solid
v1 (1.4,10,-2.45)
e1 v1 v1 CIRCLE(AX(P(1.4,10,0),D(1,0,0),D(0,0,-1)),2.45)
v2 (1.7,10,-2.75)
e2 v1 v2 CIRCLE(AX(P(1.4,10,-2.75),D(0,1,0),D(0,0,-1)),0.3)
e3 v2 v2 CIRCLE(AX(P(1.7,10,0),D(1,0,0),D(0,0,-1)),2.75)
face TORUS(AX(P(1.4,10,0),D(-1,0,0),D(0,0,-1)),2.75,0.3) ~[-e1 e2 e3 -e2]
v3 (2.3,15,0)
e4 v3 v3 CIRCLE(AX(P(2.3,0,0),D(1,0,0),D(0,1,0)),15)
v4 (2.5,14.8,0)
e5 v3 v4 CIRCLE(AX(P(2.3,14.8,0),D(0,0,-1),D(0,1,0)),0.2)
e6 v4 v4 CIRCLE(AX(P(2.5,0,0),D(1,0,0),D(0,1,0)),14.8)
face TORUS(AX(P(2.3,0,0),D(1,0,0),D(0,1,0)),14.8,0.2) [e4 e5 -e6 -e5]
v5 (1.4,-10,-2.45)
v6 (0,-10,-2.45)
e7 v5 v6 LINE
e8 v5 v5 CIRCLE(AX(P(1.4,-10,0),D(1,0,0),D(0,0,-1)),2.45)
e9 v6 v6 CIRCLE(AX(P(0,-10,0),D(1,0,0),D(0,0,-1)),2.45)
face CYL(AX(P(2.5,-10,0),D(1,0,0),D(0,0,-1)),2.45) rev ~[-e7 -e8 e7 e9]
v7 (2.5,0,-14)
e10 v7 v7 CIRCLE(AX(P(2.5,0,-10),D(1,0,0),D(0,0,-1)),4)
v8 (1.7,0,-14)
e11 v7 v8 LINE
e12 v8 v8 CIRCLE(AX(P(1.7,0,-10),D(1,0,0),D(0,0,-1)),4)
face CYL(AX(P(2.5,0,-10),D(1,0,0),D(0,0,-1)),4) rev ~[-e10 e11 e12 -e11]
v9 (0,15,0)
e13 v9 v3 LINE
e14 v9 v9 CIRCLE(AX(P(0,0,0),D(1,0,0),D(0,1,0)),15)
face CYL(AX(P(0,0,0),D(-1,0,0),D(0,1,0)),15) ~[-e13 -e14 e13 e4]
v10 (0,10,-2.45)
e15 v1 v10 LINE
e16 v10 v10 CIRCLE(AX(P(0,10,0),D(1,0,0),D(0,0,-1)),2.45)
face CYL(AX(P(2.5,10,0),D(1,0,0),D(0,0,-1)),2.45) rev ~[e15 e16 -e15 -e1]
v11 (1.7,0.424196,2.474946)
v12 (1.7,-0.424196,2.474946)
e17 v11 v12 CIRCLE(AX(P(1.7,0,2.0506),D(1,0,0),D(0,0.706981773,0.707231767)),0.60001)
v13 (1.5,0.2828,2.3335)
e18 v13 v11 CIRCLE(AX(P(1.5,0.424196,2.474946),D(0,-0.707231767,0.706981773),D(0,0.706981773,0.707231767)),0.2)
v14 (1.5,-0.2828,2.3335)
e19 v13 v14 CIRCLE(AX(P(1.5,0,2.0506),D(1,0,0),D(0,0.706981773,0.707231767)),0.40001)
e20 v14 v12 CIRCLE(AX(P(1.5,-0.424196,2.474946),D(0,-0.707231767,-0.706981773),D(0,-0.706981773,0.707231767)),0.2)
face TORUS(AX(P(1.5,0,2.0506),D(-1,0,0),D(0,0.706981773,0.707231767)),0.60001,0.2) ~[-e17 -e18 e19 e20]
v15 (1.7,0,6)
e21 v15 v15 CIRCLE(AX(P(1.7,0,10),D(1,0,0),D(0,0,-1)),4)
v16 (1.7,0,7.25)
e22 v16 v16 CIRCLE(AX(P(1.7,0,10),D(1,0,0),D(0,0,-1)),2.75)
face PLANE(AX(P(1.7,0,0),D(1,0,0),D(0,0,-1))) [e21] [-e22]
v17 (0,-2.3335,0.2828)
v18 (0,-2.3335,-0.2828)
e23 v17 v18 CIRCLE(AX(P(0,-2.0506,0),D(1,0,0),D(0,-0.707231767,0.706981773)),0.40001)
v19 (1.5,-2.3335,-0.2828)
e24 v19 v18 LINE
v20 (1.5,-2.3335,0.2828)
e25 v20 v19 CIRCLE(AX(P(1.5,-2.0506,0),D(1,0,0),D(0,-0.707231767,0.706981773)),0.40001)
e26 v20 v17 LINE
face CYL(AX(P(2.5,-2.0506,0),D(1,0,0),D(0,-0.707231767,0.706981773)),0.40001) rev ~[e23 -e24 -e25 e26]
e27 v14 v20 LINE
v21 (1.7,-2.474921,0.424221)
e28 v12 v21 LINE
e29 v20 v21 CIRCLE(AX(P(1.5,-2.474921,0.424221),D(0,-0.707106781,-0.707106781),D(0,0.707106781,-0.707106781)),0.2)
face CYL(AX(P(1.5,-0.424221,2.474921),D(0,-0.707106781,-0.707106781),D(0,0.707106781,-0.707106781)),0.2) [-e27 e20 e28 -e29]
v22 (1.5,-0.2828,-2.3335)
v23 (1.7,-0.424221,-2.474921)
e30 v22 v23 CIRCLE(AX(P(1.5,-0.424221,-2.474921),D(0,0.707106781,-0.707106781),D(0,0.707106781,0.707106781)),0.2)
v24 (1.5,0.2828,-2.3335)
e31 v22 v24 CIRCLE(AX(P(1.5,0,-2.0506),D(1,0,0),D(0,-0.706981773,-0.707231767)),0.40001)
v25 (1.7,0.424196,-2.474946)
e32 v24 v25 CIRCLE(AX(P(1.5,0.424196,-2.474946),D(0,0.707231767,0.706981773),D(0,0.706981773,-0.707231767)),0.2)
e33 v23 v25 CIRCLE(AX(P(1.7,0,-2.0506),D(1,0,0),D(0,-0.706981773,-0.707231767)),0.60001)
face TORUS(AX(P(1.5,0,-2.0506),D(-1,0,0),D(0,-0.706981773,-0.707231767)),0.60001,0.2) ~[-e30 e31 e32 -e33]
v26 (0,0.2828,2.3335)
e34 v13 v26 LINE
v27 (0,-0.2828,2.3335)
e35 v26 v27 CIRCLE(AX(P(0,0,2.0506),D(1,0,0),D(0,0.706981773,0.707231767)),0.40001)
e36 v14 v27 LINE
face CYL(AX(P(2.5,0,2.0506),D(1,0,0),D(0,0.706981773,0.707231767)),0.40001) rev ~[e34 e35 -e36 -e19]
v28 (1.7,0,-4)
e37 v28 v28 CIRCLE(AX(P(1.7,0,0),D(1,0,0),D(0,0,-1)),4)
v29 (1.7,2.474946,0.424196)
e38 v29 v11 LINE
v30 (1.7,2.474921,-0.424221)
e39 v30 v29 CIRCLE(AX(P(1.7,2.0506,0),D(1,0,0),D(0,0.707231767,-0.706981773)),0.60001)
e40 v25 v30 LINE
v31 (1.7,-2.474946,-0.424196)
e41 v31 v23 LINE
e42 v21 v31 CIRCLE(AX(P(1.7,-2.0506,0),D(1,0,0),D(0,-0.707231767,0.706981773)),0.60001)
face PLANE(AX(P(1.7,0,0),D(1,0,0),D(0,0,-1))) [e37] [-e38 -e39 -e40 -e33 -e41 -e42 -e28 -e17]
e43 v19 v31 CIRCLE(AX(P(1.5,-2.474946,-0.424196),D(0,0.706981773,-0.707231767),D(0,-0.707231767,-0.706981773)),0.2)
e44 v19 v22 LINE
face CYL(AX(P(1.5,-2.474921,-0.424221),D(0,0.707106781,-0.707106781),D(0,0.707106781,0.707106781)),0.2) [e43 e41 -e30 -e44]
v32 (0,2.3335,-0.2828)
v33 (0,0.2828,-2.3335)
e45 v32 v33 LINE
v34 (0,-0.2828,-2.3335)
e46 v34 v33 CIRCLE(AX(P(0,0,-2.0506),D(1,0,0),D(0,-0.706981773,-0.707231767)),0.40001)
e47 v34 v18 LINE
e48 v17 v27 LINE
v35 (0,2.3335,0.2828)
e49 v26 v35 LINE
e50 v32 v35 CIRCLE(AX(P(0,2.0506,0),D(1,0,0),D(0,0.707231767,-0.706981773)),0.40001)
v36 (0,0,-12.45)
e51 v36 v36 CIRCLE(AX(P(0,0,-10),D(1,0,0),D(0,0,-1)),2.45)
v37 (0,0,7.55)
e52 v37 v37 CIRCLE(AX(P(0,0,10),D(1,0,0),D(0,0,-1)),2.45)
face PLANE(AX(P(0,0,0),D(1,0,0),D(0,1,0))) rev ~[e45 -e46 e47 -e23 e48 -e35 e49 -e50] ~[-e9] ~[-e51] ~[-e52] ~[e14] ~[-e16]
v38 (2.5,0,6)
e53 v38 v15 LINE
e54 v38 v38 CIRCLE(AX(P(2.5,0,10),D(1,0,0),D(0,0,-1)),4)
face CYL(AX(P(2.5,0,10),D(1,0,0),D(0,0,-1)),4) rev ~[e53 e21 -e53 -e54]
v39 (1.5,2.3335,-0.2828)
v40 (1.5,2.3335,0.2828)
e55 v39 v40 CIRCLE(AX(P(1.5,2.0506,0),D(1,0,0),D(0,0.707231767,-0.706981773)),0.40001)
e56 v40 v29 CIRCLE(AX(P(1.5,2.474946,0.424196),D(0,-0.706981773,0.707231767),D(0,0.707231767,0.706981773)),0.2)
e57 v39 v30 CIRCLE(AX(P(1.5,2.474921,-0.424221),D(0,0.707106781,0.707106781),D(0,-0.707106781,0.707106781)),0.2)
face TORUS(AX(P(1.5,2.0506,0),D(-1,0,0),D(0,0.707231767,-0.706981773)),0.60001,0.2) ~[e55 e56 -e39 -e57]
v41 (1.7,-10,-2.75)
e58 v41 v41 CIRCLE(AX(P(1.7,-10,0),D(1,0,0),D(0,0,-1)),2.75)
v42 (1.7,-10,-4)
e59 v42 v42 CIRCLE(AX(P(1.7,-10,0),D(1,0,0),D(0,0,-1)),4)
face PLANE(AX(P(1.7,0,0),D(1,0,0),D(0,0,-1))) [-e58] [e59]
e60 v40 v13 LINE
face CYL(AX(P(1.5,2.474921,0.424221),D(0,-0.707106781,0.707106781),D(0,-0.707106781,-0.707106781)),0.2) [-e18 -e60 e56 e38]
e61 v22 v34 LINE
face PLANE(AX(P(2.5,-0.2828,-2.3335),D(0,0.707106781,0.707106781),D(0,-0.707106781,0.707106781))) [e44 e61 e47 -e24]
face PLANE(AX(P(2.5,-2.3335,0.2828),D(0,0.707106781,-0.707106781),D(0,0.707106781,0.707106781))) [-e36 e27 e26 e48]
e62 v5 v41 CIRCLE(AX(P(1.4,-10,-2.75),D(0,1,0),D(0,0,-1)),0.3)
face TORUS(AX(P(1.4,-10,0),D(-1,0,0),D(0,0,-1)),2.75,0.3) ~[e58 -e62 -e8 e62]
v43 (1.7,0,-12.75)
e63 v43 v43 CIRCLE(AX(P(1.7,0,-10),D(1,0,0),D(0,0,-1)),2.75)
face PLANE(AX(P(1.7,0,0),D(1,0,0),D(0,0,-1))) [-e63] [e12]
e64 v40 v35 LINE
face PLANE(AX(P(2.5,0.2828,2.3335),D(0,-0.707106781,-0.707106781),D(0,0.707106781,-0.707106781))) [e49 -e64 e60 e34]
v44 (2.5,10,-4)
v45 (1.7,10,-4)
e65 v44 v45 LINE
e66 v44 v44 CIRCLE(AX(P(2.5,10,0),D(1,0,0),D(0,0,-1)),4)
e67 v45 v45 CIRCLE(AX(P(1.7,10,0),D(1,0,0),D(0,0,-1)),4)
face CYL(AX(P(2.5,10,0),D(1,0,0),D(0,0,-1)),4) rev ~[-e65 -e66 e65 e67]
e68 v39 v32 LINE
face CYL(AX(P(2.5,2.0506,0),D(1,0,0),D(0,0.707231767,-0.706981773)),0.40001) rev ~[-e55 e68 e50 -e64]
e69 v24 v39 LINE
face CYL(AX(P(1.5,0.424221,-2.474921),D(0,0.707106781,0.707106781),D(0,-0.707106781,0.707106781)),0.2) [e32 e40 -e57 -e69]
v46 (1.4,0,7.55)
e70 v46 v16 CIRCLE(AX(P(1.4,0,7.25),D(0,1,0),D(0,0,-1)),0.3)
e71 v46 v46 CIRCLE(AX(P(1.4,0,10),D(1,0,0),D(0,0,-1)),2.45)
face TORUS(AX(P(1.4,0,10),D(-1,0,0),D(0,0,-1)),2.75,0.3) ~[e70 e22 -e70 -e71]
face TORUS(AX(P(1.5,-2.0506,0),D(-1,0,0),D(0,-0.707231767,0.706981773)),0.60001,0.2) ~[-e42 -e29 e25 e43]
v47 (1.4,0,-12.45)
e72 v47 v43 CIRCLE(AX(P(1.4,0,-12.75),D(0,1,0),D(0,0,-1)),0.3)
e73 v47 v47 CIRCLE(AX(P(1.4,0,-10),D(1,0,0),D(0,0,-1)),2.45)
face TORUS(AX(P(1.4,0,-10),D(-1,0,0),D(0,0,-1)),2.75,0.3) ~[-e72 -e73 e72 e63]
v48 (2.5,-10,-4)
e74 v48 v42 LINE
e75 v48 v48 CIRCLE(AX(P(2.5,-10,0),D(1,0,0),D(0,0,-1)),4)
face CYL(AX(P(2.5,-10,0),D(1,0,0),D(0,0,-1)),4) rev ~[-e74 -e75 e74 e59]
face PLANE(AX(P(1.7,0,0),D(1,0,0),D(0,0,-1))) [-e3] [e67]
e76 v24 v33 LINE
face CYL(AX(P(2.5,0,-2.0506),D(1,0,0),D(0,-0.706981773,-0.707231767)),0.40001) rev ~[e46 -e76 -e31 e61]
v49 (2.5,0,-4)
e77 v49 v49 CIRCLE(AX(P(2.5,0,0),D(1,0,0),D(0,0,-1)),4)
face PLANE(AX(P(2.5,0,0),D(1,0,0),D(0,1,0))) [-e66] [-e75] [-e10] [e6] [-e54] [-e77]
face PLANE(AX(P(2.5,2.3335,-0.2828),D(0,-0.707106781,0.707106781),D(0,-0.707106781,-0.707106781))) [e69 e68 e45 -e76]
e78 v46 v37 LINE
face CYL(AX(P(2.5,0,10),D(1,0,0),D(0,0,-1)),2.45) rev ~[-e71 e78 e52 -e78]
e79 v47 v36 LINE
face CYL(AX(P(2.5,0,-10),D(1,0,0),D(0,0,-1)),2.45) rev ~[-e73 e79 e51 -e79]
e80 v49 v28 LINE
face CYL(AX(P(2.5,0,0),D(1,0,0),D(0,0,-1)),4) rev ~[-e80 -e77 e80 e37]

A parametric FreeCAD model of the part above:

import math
import FreeCAD as App
import Part
import Sketcher
Q = App.Units.Quantity


def edges_at(feature, points):
    """Names of the edges that pass closest to the given points."""
    edges = feature.Shape.Edges
    near = lambda p: min(range(len(edges)), key=lambda i: edges[i].distToShape(Part.Vertex(*p))[0])
    return sorted({f"Edge{near(p) + 1}" for p in points})

doc = App.newDocument("Part")
params = doc.addObject("Spreadsheet::Sheet", "Params")
for row, (alias, value) in enumerate([
    ("sketch1_diameter", "30 mm"),
    ("pad1_length", "2.5 mm"),
    ("sketch2_diameter", "4.9 mm"),
    ("sketch2_radius", "0.4 mm"),
    ("fillet_radius", "0.2 mm"),
    ("sketch3_diameter", "8 mm"),
    ("pocket2_length", "0.8 mm"),
    ("fillet2_radius", "0.3 mm"),
    ("sketch4_diameter", "8 mm"),
    ("pocket3_length", "0.8 mm"),
    ("fillet3_radius", "0.2 mm"),
], start=1):
    params.set(f"A{row}", alias)
    params.set(f"B{row}", "=" + value)
    params.setAlias(f"B{row}", alias)

body = doc.addObject("PartDesign::Body", "Body")

# Sketch on YZ plane
sketch1 = body.newObject("Sketcher::SketchObject", "Sketch")
sketch1.AttachmentSupport = (doc.getObject("YZ_Plane"), [""])
sketch1.MapMode = "FlatFace"
sketch1.addGeometry(Part.Circle(App.Vector(0, 0, 0), App.Vector(0, 0, 1), 15), False)
sketch1.addConstraint(Sketcher.Constraint("Coincident", 0, 3, -1, 1))
sketch1.addConstraint(Sketcher.Constraint("Diameter", 0, Q("30 mm")))
sketch1.setExpression("Constraints[1]", "Params.sketch1_diameter")
pad1 = body.newObject("PartDesign::Pad", "Pad")
pad1.Profile = sketch1
pad1.setExpression("Length", "Params.pad1_length")

# Sketch on YZ plane
sketch2 = body.newObject("Sketcher::SketchObject", "Sketch001")
sketch2.AttachmentSupport = (doc.getObject("YZ_Plane"), [""])
sketch2.MapMode = "FlatFace"
sketch2.AttachmentOffset = App.Placement(App.Vector(0, 0, 2.5), App.Rotation())
sketch2.addGeometry(Part.LineSegment(App.Vector(-0.2828, 2.3335, 0), App.Vector(-2.3335, 0.2828, 0)), False)
sketch2.addGeometry(Part.ArcOfCircle(Part.Circle(App.Vector(-2.0506, 0, 0), App.Vector(0, 0, 1), 0.40001), math.radians(135.010128), math.radians(224.989872)), False)
sketch2.addGeometry(Part.LineSegment(App.Vector(-2.3335, -0.2828, 0), App.Vector(-0.2828, -2.3335, 0)), False)
sketch2.addGeometry(Part.ArcOfCircle(Part.Circle(App.Vector(0, -2.0506, 0), App.Vector(0, 0, 1), 0.40001), math.radians(-134.989872), math.radians(-45.010128)), False)
sketch2.addGeometry(Part.LineSegment(App.Vector(0.2828, -2.3335, 0), App.Vector(2.3335, -0.2828, 0)), False)
sketch2.addGeometry(Part.ArcOfCircle(Part.Circle(App.Vector(2.0506, 0, 0), App.Vector(0, 0, 1), 0.40001), math.radians(-44.989872), math.radians(44.989872)), False)
sketch2.addGeometry(Part.LineSegment(App.Vector(2.3335, 0.2828, 0), App.Vector(0.2828, 2.3335, 0)), False)
sketch2.addGeometry(Part.ArcOfCircle(Part.Circle(App.Vector(0, 2.0506, 0), App.Vector(0, 0, 1), 0.40001), math.radians(45.010128), math.radians(134.989872)), False)
sketch2.addGeometry(Part.Circle(App.Vector(0, -10, 0), App.Vector(0, 0, 1), 2.45), False)
sketch2.addGeometry(Part.Circle(App.Vector(0, 10, 0), App.Vector(0, 0, 1), 2.45), False)
sketch2.addGeometry(Part.Circle(App.Vector(-10, 0, 0), App.Vector(0, 0, 1), 2.45), False)
sketch2.addGeometry(Part.Circle(App.Vector(10, 0, 0), App.Vector(0, 0, 1), 2.45), False)
sketch2.addConstraint(Sketcher.Constraint("Tangent", 0, 2, 1, 1))
sketch2.addConstraint(Sketcher.Constraint("Tangent", 1, 2, 2, 1))
sketch2.addConstraint(Sketcher.Constraint("Tangent", 2, 2, 3, 1))
sketch2.addConstraint(Sketcher.Constraint("Tangent", 3, 2, 4, 1))
sketch2.addConstraint(Sketcher.Constraint("Tangent", 4, 2, 5, 1))
sketch2.addConstraint(Sketcher.Constraint("Tangent", 5, 2, 6, 1))
sketch2.addConstraint(Sketcher.Constraint("Tangent", 6, 2, 7, 1))
sketch2.addConstraint(Sketcher.Constraint("Tangent", 7, 2, 0, 1))
sketch2.addConstraint(Sketcher.Constraint("Equal", 1, 3))
sketch2.addConstraint(Sketcher.Constraint("Equal", 3, 5))
sketch2.addConstraint(Sketcher.Constraint("Equal", 5, 7))
sketch2.addConstraint(Sketcher.Constraint("Equal", 8, 9))
sketch2.addConstraint(Sketcher.Constraint("Equal", 9, 10))
sketch2.addConstraint(Sketcher.Constraint("Equal", 10, 11))
sketch2.addConstraint(Sketcher.Constraint("Symmetric", 1, 3, 5, 3, -1, 1))
sketch2.addConstraint(Sketcher.Constraint("Symmetric", 3, 3, 7, 3, -1, 1))
sketch2.addConstraint(Sketcher.Constraint("Symmetric", 8, 3, 9, 3, -1, 1))
sketch2.addConstraint(Sketcher.Constraint("Symmetric", 10, 3, 11, 3, -1, 1))
sketch2.addConstraint(Sketcher.Constraint("Symmetric", 2, 2, 3, 2, -2))
sketch2.addConstraint(Sketcher.Constraint("PointOnObject", 8, 3, -2))
sketch2.addConstraint(Sketcher.Constraint("PointOnObject", 10, 3, -1))
sketch2.addConstraint(Sketcher.Constraint("Perpendicular", 0, 2))
sketch2.addConstraint(Sketcher.Constraint("Diameter", 8, Q("4.9 mm")))
sketch2.addConstraint(Sketcher.Constraint("Radius", 1, Q("0.4 mm")))
sketch2.addConstraint(Sketcher.Constraint("DistanceY", 8, 3, -1, 1, Q("10 mm")))
sketch2.addConstraint(Sketcher.Constraint("DistanceX", 10, 3, -1, 1, Q("10 mm")))
sketch2.addConstraint(Sketcher.Constraint("DistanceX", 0, 2, 5, 3, Q("4.384 mm")))
sketch2.setExpression("Constraints[22]", "Params.sketch2_diameter")
sketch2.setExpression("Constraints[23]", "Params.sketch2_radius")
pocket1 = body.newObject("PartDesign::Pocket", "Pocket")
pocket1.Profile = sketch2
pocket1.Type = "ThroughAll"
doc.recompute()

fillet = body.newObject("PartDesign::Fillet", "Fillet")
fillet.Base = (pocket1, edges_at(pocket1, [(2.5, -15, 0)]))
fillet.setExpression("Radius", "Params.fillet_radius")

# Sketch on YZ plane
sketch3 = body.newObject("Sketcher::SketchObject", "Sketch002")
sketch3.AttachmentSupport = (doc.getObject("YZ_Plane"), [""])
sketch3.MapMode = "FlatFace"
sketch3.AttachmentOffset = App.Placement(App.Vector(0, 0, 2.5), App.Rotation())
sketch3.addGeometry(Part.Circle(App.Vector(0, 10, 0), App.Vector(0, 0, 1), 4), False)
sketch3.addGeometry(Part.Circle(App.Vector(10, 0, 0), App.Vector(0, 0, 1), 4), False)
sketch3.addGeometry(Part.Circle(App.Vector(0, -10, 0), App.Vector(0, 0, 1), 4), False)
sketch3.addGeometry(Part.Circle(App.Vector(-10, 0, 0), App.Vector(0, 0, 1), 4), False)
sketch3.addConstraint(Sketcher.Constraint("Equal", 0, 1))
sketch3.addConstraint(Sketcher.Constraint("Equal", 1, 2))
sketch3.addConstraint(Sketcher.Constraint("Equal", 2, 3))
sketch3.addConstraint(Sketcher.Constraint("Symmetric", 0, 3, 2, 3, -1, 1))
sketch3.addConstraint(Sketcher.Constraint("Symmetric", 1, 3, 3, 3, -1, 1))
sketch3.addConstraint(Sketcher.Constraint("PointOnObject", 0, 3, -2))
sketch3.addConstraint(Sketcher.Constraint("PointOnObject", 1, 3, -1))
sketch3.addConstraint(Sketcher.Constraint("Diameter", 0, Q("8 mm")))
sketch3.addConstraint(Sketcher.Constraint("DistanceY", -1, 1, 0, 3, Q("10 mm")))
sketch3.addConstraint(Sketcher.Constraint("DistanceX", -1, 1, 1, 3, Q("10 mm")))
sketch3.setExpression("Constraints[7]", "Params.sketch3_diameter")
pocket2 = body.newObject("PartDesign::Pocket", "Pocket001")
pocket2.Profile = sketch3
pocket2.setExpression("Length", "Params.pocket2_length")
doc.recompute()

fillet2 = body.newObject("PartDesign::Fillet", "Fillet001")
fillet2.Base = (pocket2, edges_at(pocket2, [
    (1.7, -10, 2.45),
    (1.7, 0, 12.45),
    (1.7, 0, -7.55),
    (1.7, 10, 2.45),
]))
fillet2.setExpression("Radius", "Params.fillet2_radius")

# Sketch on YZ plane
sketch4 = body.newObject("Sketcher::SketchObject", "Sketch003")
sketch4.AttachmentSupport = (doc.getObject("YZ_Plane"), [""])
sketch4.MapMode = "FlatFace"
sketch4.AttachmentOffset = App.Placement(App.Vector(0, 0, 2.5), App.Rotation())
sketch4.addGeometry(Part.Circle(App.Vector(0, 0, 0), App.Vector(0, 0, 1), 4), False)
sketch4.addConstraint(Sketcher.Constraint("Coincident", 0, 3, -1, 1))
sketch4.addConstraint(Sketcher.Constraint("Diameter", 0, Q("8 mm")))
sketch4.setExpression("Constraints[1]", "Params.sketch4_diameter")
pocket3 = body.newObject("PartDesign::Pocket", "Pocket002")
pocket3.Profile = sketch4
pocket3.setExpression("Length", "Params.pocket3_length")
doc.recompute()

fillet3 = body.newObject("PartDesign::Fillet", "Fillet002")
fillet3.Base = (pocket3, edges_at(pocket3, [
    (1.7, 0, 2.451),
    (1.7, -1.308, 1.308),
    (1.7, -2.451, 0),
    (1.7, -1.308, -1.308),
    (1.7, 0, -2.451),
    (1.7, 1.308, -1.308),
    (1.7, 2.451, 0),
    (1.7, 1.308, 1.308),
]))
fillet3.setExpression("Radius", "Params.fillet3_radius")

doc.recompute()
